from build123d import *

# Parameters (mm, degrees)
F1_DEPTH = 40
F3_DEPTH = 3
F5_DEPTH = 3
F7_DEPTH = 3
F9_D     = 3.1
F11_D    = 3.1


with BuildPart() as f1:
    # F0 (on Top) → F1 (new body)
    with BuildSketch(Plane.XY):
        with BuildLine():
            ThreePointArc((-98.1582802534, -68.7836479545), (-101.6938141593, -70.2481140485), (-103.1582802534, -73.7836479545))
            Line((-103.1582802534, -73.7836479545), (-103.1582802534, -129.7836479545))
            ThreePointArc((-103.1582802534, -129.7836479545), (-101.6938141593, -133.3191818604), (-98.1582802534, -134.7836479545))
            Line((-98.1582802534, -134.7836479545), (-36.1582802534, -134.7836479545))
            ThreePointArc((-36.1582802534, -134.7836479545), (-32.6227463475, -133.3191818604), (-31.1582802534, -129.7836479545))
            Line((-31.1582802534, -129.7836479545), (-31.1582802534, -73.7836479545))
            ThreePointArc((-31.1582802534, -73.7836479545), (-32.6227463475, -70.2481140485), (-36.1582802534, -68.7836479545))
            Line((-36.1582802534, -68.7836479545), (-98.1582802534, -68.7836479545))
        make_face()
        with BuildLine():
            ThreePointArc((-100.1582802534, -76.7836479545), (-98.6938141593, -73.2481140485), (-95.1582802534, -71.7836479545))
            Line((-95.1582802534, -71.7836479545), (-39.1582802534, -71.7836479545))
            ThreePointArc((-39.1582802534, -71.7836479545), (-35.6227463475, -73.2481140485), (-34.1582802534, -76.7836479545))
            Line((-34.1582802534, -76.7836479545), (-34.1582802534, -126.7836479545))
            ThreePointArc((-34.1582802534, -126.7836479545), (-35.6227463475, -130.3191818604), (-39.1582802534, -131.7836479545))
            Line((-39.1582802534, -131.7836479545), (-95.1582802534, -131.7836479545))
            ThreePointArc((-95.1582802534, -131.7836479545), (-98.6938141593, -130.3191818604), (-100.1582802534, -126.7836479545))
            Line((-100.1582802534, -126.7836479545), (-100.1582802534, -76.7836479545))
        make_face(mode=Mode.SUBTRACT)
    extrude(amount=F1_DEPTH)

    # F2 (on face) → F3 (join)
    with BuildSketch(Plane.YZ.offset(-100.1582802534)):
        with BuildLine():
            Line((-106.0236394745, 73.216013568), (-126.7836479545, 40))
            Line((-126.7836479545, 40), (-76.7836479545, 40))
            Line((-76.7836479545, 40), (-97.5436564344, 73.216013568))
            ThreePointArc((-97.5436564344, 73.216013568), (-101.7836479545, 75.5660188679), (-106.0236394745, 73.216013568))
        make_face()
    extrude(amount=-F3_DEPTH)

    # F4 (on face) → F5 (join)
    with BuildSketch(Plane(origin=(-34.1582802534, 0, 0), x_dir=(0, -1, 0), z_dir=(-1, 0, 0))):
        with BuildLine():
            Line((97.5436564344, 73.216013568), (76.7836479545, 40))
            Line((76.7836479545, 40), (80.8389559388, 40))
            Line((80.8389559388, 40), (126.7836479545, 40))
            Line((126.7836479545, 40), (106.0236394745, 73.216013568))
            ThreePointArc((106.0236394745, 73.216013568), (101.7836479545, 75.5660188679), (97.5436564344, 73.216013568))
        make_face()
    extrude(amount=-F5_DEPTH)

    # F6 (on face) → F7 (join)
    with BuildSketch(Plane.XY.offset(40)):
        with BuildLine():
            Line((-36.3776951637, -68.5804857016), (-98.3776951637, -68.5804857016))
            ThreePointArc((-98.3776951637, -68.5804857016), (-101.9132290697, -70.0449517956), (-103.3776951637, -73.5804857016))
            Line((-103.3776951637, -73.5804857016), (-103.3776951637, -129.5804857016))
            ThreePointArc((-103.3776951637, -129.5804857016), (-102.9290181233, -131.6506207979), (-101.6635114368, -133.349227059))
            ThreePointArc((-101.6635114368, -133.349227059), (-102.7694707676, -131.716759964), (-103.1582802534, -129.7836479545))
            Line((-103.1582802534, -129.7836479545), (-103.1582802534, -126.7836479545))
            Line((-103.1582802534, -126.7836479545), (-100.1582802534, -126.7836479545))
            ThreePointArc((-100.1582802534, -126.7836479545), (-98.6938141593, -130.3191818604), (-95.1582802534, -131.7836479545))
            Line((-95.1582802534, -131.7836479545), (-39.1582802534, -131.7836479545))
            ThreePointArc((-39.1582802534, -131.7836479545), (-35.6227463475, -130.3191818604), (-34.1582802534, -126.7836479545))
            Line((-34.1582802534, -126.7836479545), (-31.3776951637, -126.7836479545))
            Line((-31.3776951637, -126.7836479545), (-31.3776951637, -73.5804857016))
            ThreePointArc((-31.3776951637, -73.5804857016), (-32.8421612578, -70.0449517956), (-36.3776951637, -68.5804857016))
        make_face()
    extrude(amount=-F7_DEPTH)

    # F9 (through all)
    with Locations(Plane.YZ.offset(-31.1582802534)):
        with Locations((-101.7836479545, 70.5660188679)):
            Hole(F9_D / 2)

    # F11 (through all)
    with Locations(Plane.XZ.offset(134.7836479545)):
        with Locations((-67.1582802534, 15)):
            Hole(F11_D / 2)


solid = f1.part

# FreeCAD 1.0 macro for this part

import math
import FreeCAD as App
import Part
import Sketcher
Q = App.Units.Quantity

doc = App.newDocument("Part")
params = doc.addObject("Spreadsheet::Sheet", "Params")
for row, (alias, value) in enumerate([
    ("sketch1_radius", "5 mm"),
    ("sketch1_width", "62 mm"),
    ("sketch1_width2", "56 mm"),
    ("sketch1_height", "50 mm"),
    ("pad1_length", "40 mm"),
    ("sketch2_radius", "5 mm"),
    ("sketch2_width", "50 mm"),
    ("pad2_length", "3 mm"),
    ("sketch3_radius", "5 mm"),
    ("sketch3_width", "50 mm"),
    ("pad3_length", "3 mm"),
    ("sketch4_radius", "5 mm"),
    ("sketch4_width", "62 mm"),
    ("sketch4_width2", "3 mm"),
    ("sketch4_width3", "56 mm"),
    ("pad4_length", "3 mm"),
    ("sketch5_diameter", "3.1 mm"),
    ("hole_diameter", "3.1 mm"),
    ("sketch6_diameter", "3.1 mm"),
    ("hole2_diameter", "3.1 mm"),
], start=1):
    params.set(f"A{row}", alias)
    params.set(f"B{row}", "=" + value)
    params.setAlias(f"B{row}", alias)

body = doc.addObject("PartDesign::Body", "Body")

sketch1 = body.newObject("Sketcher::SketchObject", "Sketch")
sketch1.AttachmentSupport = (doc.getObject("XY_Plane"), [""])
sketch1.MapMode = "FlatFace"
sketch1.addGeometry(Part.ArcOfCircle(Part.Circle(App.Vector(-98, -74, 0), App.Vector(0, 0, 1), 5), math.radians(90), math.radians(180)), False)
sketch1.addGeometry(Part.LineSegment(App.Vector(-103, -74, 0), App.Vector(-103, -130, 0)), False)
sketch1.addGeometry(Part.ArcOfCircle(Part.Circle(App.Vector(-98, -130, 0), App.Vector(0, 0, 1), 5), math.radians(180), math.radians(270)), False)
sketch1.addGeometry(Part.LineSegment(App.Vector(-98, -135, 0), App.Vector(-36, -135, 0)), False)
sketch1.addGeometry(Part.ArcOfCircle(Part.Circle(App.Vector(-36, -130, 0), App.Vector(0, 0, 1), 5), math.radians(-90), math.radians(0)), False)
sketch1.addGeometry(Part.LineSegment(App.Vector(-31, -130, 0), App.Vector(-31, -74, 0)), False)
sketch1.addGeometry(Part.ArcOfCircle(Part.Circle(App.Vector(-36, -74, 0), App.Vector(0, 0, 1), 5), math.radians(0), math.radians(90)), False)
sketch1.addGeometry(Part.LineSegment(App.Vector(-36, -69, 0), App.Vector(-98, -69, 0)), False)
sketch1.addGeometry(Part.LineSegment(App.Vector(-100, -127, 0), App.Vector(-100, -77, 0)), False)
sketch1.addGeometry(Part.ArcOfCircle(Part.Circle(App.Vector(-95, -77, 0), App.Vector(0, 0, 1), 5), math.radians(90), math.radians(180)), False)
sketch1.addGeometry(Part.LineSegment(App.Vector(-95, -72, 0), App.Vector(-39, -72, 0)), False)
sketch1.addGeometry(Part.ArcOfCircle(Part.Circle(App.Vector(-39, -77, 0), App.Vector(0, 0, 1), 5), math.radians(0), math.radians(90)), False)
sketch1.addGeometry(Part.LineSegment(App.Vector(-34, -77, 0), App.Vector(-34, -127, 0)), False)
sketch1.addGeometry(Part.ArcOfCircle(Part.Circle(App.Vector(-39, -127, 0), App.Vector(0, 0, 1), 5), math.radians(-90), math.radians(0)), False)
sketch1.addGeometry(Part.LineSegment(App.Vector(-39, -132, 0), App.Vector(-95, -132, 0)), False)
sketch1.addGeometry(Part.ArcOfCircle(Part.Circle(App.Vector(-95, -127, 0), App.Vector(0, 0, 1), 5), math.radians(180), math.radians(270)), False)
sketch1.addConstraint(Sketcher.Constraint("Tangent", 0, 2, 1, 1))
sketch1.addConstraint(Sketcher.Constraint("Tangent", 1, 2, 2, 1))
sketch1.addConstraint(Sketcher.Constraint("Tangent", 2, 2, 3, 1))
sketch1.addConstraint(Sketcher.Constraint("Tangent", 3, 2, 4, 1))
sketch1.addConstraint(Sketcher.Constraint("Tangent", 4, 2, 5, 1))
sketch1.addConstraint(Sketcher.Constraint("Tangent", 5, 2, 6, 1))
sketch1.addConstraint(Sketcher.Constraint("Tangent", 6, 2, 7, 1))
sketch1.addConstraint(Sketcher.Constraint("Tangent", 7, 2, 0, 1))
sketch1.addConstraint(Sketcher.Constraint("Tangent", 8, 2, 9, 2))
sketch1.addConstraint(Sketcher.Constraint("Tangent", 9, 1, 10, 1))
sketch1.addConstraint(Sketcher.Constraint("Tangent", 10, 2, 11, 2))
sketch1.addConstraint(Sketcher.Constraint("Tangent", 11, 1, 12, 1))
sketch1.addConstraint(Sketcher.Constraint("Tangent", 12, 2, 13, 2))
sketch1.addConstraint(Sketcher.Constraint("Tangent", 13, 1, 14, 1))
sketch1.addConstraint(Sketcher.Constraint("Tangent", 14, 2, 15, 2))
sketch1.addConstraint(Sketcher.Constraint("Tangent", 15, 1, 8, 1))
sketch1.addConstraint(Sketcher.Constraint("Vertical", 1))
sketch1.addConstraint(Sketcher.Constraint("Horizontal", 3))
sketch1.addConstraint(Sketcher.Constraint("Vertical", 5))
sketch1.addConstraint(Sketcher.Constraint("Horizontal", 7))
sketch1.addConstraint(Sketcher.Constraint("Vertical", 8))
sketch1.addConstraint(Sketcher.Constraint("Horizontal", 10))
sketch1.addConstraint(Sketcher.Constraint("Vertical", 12))
sketch1.addConstraint(Sketcher.Constraint("Horizontal", 14))
sketch1.addConstraint(Sketcher.Constraint("Equal", 0, 2))
sketch1.addConstraint(Sketcher.Constraint("Equal", 2, 4))
sketch1.addConstraint(Sketcher.Constraint("Equal", 4, 6))
sketch1.addConstraint(Sketcher.Constraint("Equal", 6, 9))
sketch1.addConstraint(Sketcher.Constraint("Equal", 9, 11))
sketch1.addConstraint(Sketcher.Constraint("Equal", 11, 13))
sketch1.addConstraint(Sketcher.Constraint("Equal", 13, 15))
sketch1.addConstraint(Sketcher.Constraint("Equal", 14, 1))
sketch1.addConstraint(Sketcher.Constraint("Radius", 0, Q("5 mm")))
sketch1.addConstraint(Sketcher.Constraint("DistanceX", 3, 1, 3, 2, Q("62 mm")))
sketch1.addConstraint(Sketcher.Constraint("DistanceX", 10, 1, 10, 2, Q("56 mm")))
sketch1.addConstraint(Sketcher.Constraint("DistanceY", 8, 1, 8, 2, Q("50 mm")))
sketch1.addConstraint(Sketcher.Constraint("DistanceX", 0, 3, 9, 3, Q("3 mm")))
sketch1.addConstraint(Sketcher.Constraint("DistanceY", 9, 3, 0, 3, Q("3 mm")))
sketch1.addConstraint(Sketcher.Constraint("DistanceX", 0, 3, -1, 1, Q("98.15828 mm")))
sketch1.addConstraint(Sketcher.Constraint("DistanceY", 0, 3, -1, 1, Q("73.783648 mm")))
sketch1.setExpression("Constraints[32]", "Params.sketch1_radius")
sketch1.setExpression("Constraints[33]", "Params.sketch1_width")
sketch1.setExpression("Constraints[34]", "Params.sketch1_width2")
sketch1.setExpression("Constraints[35]", "Params.sketch1_height")
pad1 = body.newObject("PartDesign::Pad", "Pad")
pad1.Profile = sketch1
pad1.setExpression("Length", "Params.pad1_length")

sketch2 = body.newObject("Sketcher::SketchObject", "Sketch001")
sketch2.AttachmentSupport = (doc.getObject("YZ_Plane"), [""])
sketch2.MapMode = "FlatFace"
sketch2.AttachmentOffset = App.Placement(App.Vector(0, 0, -100.15828), App.Rotation())
sketch2.addGeometry(Part.LineSegment(App.Vector(-106, 73, 0), App.Vector(-127, 40, 0)), False)
sketch2.addGeometry(Part.LineSegment(App.Vector(-127, 40, 0), App.Vector(-77, 40, 0)), False)
sketch2.addGeometry(Part.LineSegment(App.Vector(-77, 40, 0), App.Vector(-98, 73, 0)), False)
sketch2.addGeometry(Part.ArcOfCircle(Part.Circle(App.Vector(-102, 71, 0), App.Vector(0, 0, 1), 5), math.radians(32), math.radians(148)), False)
sketch2.addConstraint(Sketcher.Constraint("Coincident", 0, 2, 1, 1))
sketch2.addConstraint(Sketcher.Constraint("Coincident", 1, 2, 2, 1))
sketch2.addConstraint(Sketcher.Constraint("Tangent", 2, 2, 3, 1))
sketch2.addConstraint(Sketcher.Constraint("Tangent", 3, 2, 0, 1))
sketch2.addConstraint(Sketcher.Constraint("Horizontal", 1))
sketch2.addConstraint(Sketcher.Constraint("Horizontal", 2, 2, 3, 2))
sketch2.addConstraint(Sketcher.Constraint("Radius", 3, Q("5 mm")))
sketch2.addConstraint(Sketcher.Constraint("DistanceX", 1, 1, 1, 2, Q("50 mm")))
sketch2.addConstraint(Sketcher.Constraint("DistanceY", -1, 1, 0, 2, Q("40 mm")))
sketch2.addConstraint(Sketcher.Constraint("DistanceY", -1, 1, 3, 3, Q("70.566019 mm")))
sketch2.addConstraint(Sketcher.Constraint("DistanceX", 3, 2, -1, 1, Q("106.023639 mm")))
sketch2.setExpression("Constraints[6]", "Params.sketch2_radius")
sketch2.setExpression("Constraints[7]", "Params.sketch2_width")
pad2 = body.newObject("PartDesign::Pad", "Pad001")
pad2.Profile = sketch2
pad2.setExpression("Length", "Params.pad2_length")
pad2.Reversed = True

sketch3 = body.newObject("Sketcher::SketchObject", "Sketch002")
sketch3.AttachmentSupport = (doc.getObject("YZ_Plane"), [""])
sketch3.MapMode = "FlatFace"
sketch3.AttachmentOffset = App.Placement(App.Vector(0, 0, -34.15828), App.Rotation())
sketch3.addGeometry(Part.LineSegment(App.Vector(-98, 73, 0), App.Vector(-77, 40, 0)), False)
sketch3.addGeometry(Part.LineSegment(App.Vector(-77, 40, 0), App.Vector(-127, 40, 0)), False)
sketch3.addGeometry(Part.LineSegment(App.Vector(-127, 40, 0), App.Vector(-106, 73, 0)), False)
sketch3.addGeometry(Part.ArcOfCircle(Part.Circle(App.Vector(-102, 71, 0), App.Vector(0, 0, 1), 5), math.radians(32), math.radians(148)), False)
sketch3.addConstraint(Sketcher.Constraint("Coincident", 0, 2, 1, 1))
sketch3.addConstraint(Sketcher.Constraint("Coincident", 1, 2, 2, 1))
sketch3.addConstraint(Sketcher.Constraint("Tangent", 2, 2, 3, 2))
sketch3.addConstraint(Sketcher.Constraint("Tangent", 3, 1, 0, 1))
sketch3.addConstraint(Sketcher.Constraint("Horizontal", 1))
sketch3.addConstraint(Sketcher.Constraint("Horizontal", 2, 2, 3, 1))
sketch3.addConstraint(Sketcher.Constraint("Radius", 3, Q("5 mm")))
sketch3.addConstraint(Sketcher.Constraint("DistanceX", 1, 2, 1, 1, Q("50 mm")))
sketch3.addConstraint(Sketcher.Constraint("DistanceY", -1, 1, 0, 2, Q("40 mm")))
sketch3.addConstraint(Sketcher.Constraint("DistanceY", -1, 1, 3, 3, Q("70.566019 mm")))
sketch3.addConstraint(Sketcher.Constraint("DistanceX", 2, 2, -1, 1, Q("106.023639 mm")))
sketch3.setExpression("Constraints[6]", "Params.sketch3_radius")
sketch3.setExpression("Constraints[7]", "Params.sketch3_width")
pad3 = body.newObject("PartDesign::Pad", "Pad002")
pad3.Profile = sketch3
pad3.setExpression("Length", "Params.pad3_length")

sketch4 = body.newObject("Sketcher::SketchObject", "Sketch003")
sketch4.AttachmentSupport = (doc.getObject("XY_Plane"), [""])
sketch4.MapMode = "FlatFace"
sketch4.AttachmentOffset = App.Placement(App.Vector(0, 0, 40), App.Rotation())
sketch4.addGeometry(Part.LineSegment(App.Vector(-36.4, -68.6, 0), App.Vector(-98.4, -68.6, 0)), False)
sketch4.addGeometry(Part.ArcOfCircle(Part.Circle(App.Vector(-98.4, -73.6, 0), App.Vector(0, 0, 1), 5), math.radians(90), math.radians(180)), False)
sketch4.addGeometry(Part.LineSegment(App.Vector(-103.4, -73.6, 0), App.Vector(-103.4, -129.6, 0)), False)
sketch4.addGeometry(Part.ArcOfCircle(Part.Circle(App.Vector(-98.4, -129.6, 0), App.Vector(0, 0, 1), 5), math.radians(-180), math.radians(-131)), False)
sketch4.addGeometry(Part.ArcOfCircle(Part.Circle(App.Vector(-98.2, -129.8, 0), App.Vector(0, 0, 1), 5), math.radians(180), math.radians(225)), False)
sketch4.addGeometry(Part.LineSegment(App.Vector(-103.2, -129.8, 0), App.Vector(-103.2, -126.8, 0)), False)
sketch4.addGeometry(Part.LineSegment(App.Vector(-103.2, -126.8, 0), App.Vector(-100.2, -126.8, 0)), False)
sketch4.addGeometry(Part.ArcOfCircle(Part.Circle(App.Vector(-95.2, -126.8, 0), App.Vector(0, 0, 1), 5), math.radians(180), math.radians(270)), False)
sketch4.addGeometry(Part.LineSegment(App.Vector(-95.2, -131.8, 0), App.Vector(-39.2, -131.8, 0)), False)
sketch4.addGeometry(Part.ArcOfCircle(Part.Circle(App.Vector(-39.2, -126.8, 0), App.Vector(0, 0, 1), 5), math.radians(-90), math.radians(0)), False)
sketch4.addGeometry(Part.LineSegment(App.Vector(-34.2, -126.8, 0), App.Vector(-31.4, -126.8, 0)), False)
sketch4.addGeometry(Part.LineSegment(App.Vector(-31.4, -126.8, 0), App.Vector(-31.4, -73.6, 0)), False)
sketch4.addGeometry(Part.ArcOfCircle(Part.Circle(App.Vector(-36.4, -73.6, 0), App.Vector(0, 0, 1), 5), math.radians(0), math.radians(90)), False)
sketch4.addConstraint(Sketcher.Constraint("Tangent", 0, 2, 1, 1))
sketch4.addConstraint(Sketcher.Constraint("Tangent", 1, 2, 2, 1))
sketch4.addConstraint(Sketcher.Constraint("Tangent", 2, 2, 3, 1))
sketch4.addConstraint(Sketcher.Constraint("Coincident", 3, 2, 4, 2))
sketch4.addConstraint(Sketcher.Constraint("Tangent", 4, 1, 5, 1))
sketch4.addConstraint(Sketcher.Constraint("Coincident", 5, 2, 6, 1))
sketch4.addConstraint(Sketcher.Constraint("Coincident", 6, 2, 7, 1))
sketch4.addConstraint(Sketcher.Constraint("Tangent", 7, 2, 8, 1))
sketch4.addConstraint(Sketcher.Constraint("Tangent", 8, 2, 9, 1))
sketch4.addConstraint(Sketcher.Constraint("Coincident", 9, 2, 10, 1))
sketch4.addConstraint(Sketcher.Constraint("Coincident", 10, 2, 11, 1))
sketch4.addConstraint(Sketcher.Constraint("Tangent", 11, 2, 12, 1))
sketch4.addConstraint(Sketcher.Constraint("Tangent", 12, 2, 0, 1))
sketch4.addConstraint(Sketcher.Constraint("Horizontal", 0))
sketch4.addConstraint(Sketcher.Constraint("Vertical", 2))
sketch4.addConstraint(Sketcher.Constraint("Vertical", 5))
sketch4.addConstraint(Sketcher.Constraint("Horizontal", 6))
sketch4.addConstraint(Sketcher.Constraint("Horizontal", 8))
sketch4.addConstraint(Sketcher.Constraint("Horizontal", 10))
sketch4.addConstraint(Sketcher.Constraint("Vertical", 11))
sketch4.addConstraint(Sketcher.Constraint("Equal", 1, 3))
sketch4.addConstraint(Sketcher.Constraint("Equal", 3, 4))
sketch4.addConstraint(Sketcher.Constraint("Equal", 4, 7))
sketch4.addConstraint(Sketcher.Constraint("Equal", 7, 9))
sketch4.addConstraint(Sketcher.Constraint("Equal", 9, 12))
sketch4.addConstraint(Sketcher.Constraint("Horizontal", 9, 3, 5, 2))
sketch4.addConstraint(Sketcher.Constraint("Horizontal", 6, 2, 9, 2))
sketch4.addConstraint(Sketcher.Constraint("Equal", 8, 2))
sketch4.addConstraint(Sketcher.Constraint("Equal", 6, 5))
sketch4.addConstraint(Sketcher.Constraint("Radius", 1, Q("5 mm")))
sketch4.addConstraint(Sketcher.Constraint("DistanceX", 0, 2, 0, 1, Q("62 mm")))
sketch4.addConstraint(Sketcher.Constraint("DistanceX", 6, 1, 6, 2, Q("3 mm")))
sketch4.addConstraint(Sketcher.Constraint("DistanceX", 8, 1, 8, 2, Q("56 mm")))
sketch4.addConstraint(Sketcher.Constraint("DistanceX", 10, 1, 10, 2, Q("2.780585 mm")))
sketch4.addConstraint(Sketcher.Constraint("DistanceY", 11, 1, 11, 2, Q("53.203162 mm")))
sketch4.addConstraint(Sketcher.Constraint("DistanceX", 4, 3, -1, 1, Q("98.15828 mm")))
sketch4.addConstraint(Sketcher.Constraint("DistanceY", 1, 3, -1, 1, Q("73.580486 mm")))
sketch4.setExpression("Constraints[29]", "Params.sketch4_radius")
sketch4.setExpression("Constraints[30]", "Params.sketch4_width")
sketch4.setExpression("Constraints[31]", "Params.sketch4_width2")
sketch4.setExpression("Constraints[32]", "Params.sketch4_width3")
pad4 = body.newObject("PartDesign::Pad", "Pad003")
pad4.Profile = sketch4
pad4.setExpression("Length", "Params.pad4_length")
pad4.Reversed = True

sketch5 = body.newObject("Sketcher::SketchObject", "Sketch004")
sketch5.AttachmentSupport = (doc.getObject("YZ_Plane"), [""])
sketch5.MapMode = "FlatFace"
sketch5.AttachmentOffset = App.Placement(App.Vector(0, 0, -31.15828), App.Rotation())
sketch5.addGeometry(Part.Circle(App.Vector(-101.8, 70.6, 0), App.Vector(0, 0, 1), 1.6), False)
sketch5.addConstraint(Sketcher.Constraint("Diameter", 0, Q("3.1 mm")))
sketch5.addConstraint(Sketcher.Constraint("DistanceY", -1, 1, 0, 3, Q("70.566019 mm")))
sketch5.addConstraint(Sketcher.Constraint("DistanceX", 0, 3, -1, 1, Q("101.783648 mm")))
sketch5.setExpression("Constraints[0]", "Params.sketch5_diameter")
doc.recompute()
hole = body.newObject("PartDesign::Hole", "Hole")
hole.Profile = sketch5
hole.ThreadType = "None"
hole.setExpression("Diameter", "Params.hole_diameter")
hole.DepthType = "ThroughAll"

sketch6 = body.newObject("Sketcher::SketchObject", "Sketch005")
sketch6.AttachmentSupport = (doc.getObject("XZ_Plane"), [""])
sketch6.MapMode = "FlatFace"
sketch6.AttachmentOffset = App.Placement(App.Vector(0, 0, 134.783648), App.Rotation())
sketch6.addGeometry(Part.Circle(App.Vector(-67.2, 15, 0), App.Vector(0, 0, 1), 1.6), False)
sketch6.addConstraint(Sketcher.Constraint("Diameter", 0, Q("3.1 mm")))
sketch6.addConstraint(Sketcher.Constraint("DistanceY", -1, 1, 0, 3, Q("15 mm")))
sketch6.addConstraint(Sketcher.Constraint("DistanceX", 0, 3, -1, 1, Q("67.15828 mm")))
sketch6.setExpression("Constraints[0]", "Params.sketch6_diameter")
doc.recompute()
hole2 = body.newObject("PartDesign::Hole", "Hole001")
hole2.Profile = sketch6
hole2.ThreadType = "None"
hole2.setExpression("Diameter", "Params.hole2_diameter")
hole2.DepthType = "ThroughAll"

doc.recompute()
